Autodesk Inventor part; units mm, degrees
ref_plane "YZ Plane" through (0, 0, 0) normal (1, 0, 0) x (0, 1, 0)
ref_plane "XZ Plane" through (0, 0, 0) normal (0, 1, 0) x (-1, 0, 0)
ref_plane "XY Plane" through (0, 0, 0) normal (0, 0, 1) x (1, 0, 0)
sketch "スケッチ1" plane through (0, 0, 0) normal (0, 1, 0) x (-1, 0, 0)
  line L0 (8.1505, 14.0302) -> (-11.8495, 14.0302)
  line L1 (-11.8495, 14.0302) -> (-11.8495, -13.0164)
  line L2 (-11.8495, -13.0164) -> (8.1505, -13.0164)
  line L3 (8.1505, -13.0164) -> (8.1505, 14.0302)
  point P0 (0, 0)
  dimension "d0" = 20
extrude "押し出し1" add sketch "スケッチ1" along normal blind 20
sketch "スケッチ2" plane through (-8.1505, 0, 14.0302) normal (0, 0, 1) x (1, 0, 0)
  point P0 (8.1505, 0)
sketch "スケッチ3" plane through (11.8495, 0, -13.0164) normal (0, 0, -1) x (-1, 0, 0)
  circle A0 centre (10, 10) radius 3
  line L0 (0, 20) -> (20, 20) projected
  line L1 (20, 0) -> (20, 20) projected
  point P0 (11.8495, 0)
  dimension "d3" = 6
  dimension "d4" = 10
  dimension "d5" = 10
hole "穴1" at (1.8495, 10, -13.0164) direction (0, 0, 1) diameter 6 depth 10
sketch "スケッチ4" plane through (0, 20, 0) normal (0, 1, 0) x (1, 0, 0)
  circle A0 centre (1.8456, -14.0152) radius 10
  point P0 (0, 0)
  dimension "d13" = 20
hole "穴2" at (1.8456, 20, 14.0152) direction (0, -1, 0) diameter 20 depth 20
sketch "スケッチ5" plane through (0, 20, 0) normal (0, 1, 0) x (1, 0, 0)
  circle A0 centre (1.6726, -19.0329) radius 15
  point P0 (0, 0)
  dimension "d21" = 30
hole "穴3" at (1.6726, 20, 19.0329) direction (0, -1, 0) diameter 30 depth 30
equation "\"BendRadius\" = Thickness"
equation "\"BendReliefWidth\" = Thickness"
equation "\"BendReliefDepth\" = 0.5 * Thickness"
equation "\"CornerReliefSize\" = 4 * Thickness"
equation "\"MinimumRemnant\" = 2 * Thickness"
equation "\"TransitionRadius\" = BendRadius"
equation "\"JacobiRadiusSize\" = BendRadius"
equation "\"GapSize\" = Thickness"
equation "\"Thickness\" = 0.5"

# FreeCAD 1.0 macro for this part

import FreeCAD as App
import Part
import Sketcher
from FreeCAD import Vector
Q = App.Units.Quantity

doc = App.newDocument("Part")
params = doc.addObject("Spreadsheet::Sheet", "Params")
for row, (alias, value) in enumerate([
    ("sketch1_width", "20 mm"),
    ("pad1_length", "20 mm"),
    ("sketch2_diameter", "6 mm"),
    ("hole_diameter", "6 mm"),
    ("hole_depth", "10 mm"),
    ("sketch3_diameter", "20 mm"),
    ("hole2_diameter", "20 mm"),
    ("hole2_depth", "20 mm"),
    ("sketch4_diameter", "30 mm"),
    ("hole3_diameter", "30 mm"),
    ("hole3_depth", "30 mm"),
], start=1):
    params.set(f"A{row}", alias)
    params.set(f"B{row}", "=" + value)
    params.setAlias(f"B{row}", alias)

body = doc.addObject("PartDesign::Body", "Body")

sketch1 = doc.addObject("Sketcher::SketchObject", "Sketch")
body.addObject(sketch1)
sketch1.AttachmentSupport = (doc.XZ_Plane, [""])
sketch1.MapMode = "FlatFace"
sketch1.addGeometry([
    Part.LineSegment(Vector(-8, -13, 0), Vector(-8, 14, 0)),
    Part.LineSegment(Vector(-8, 14, 0), Vector(12, 14, 0)),
    Part.LineSegment(Vector(12, 14, 0), Vector(12, -13, 0)),
    Part.LineSegment(Vector(12, -13, 0), Vector(-8, -13, 0)),
], False)
sketch1.addConstraint([
    Sketcher.Constraint("Coincident", 0, 2, 1, 1),
    Sketcher.Constraint("Coincident", 1, 2, 2, 1),
    Sketcher.Constraint("Coincident", 2, 2, 3, 1),
    Sketcher.Constraint("Coincident", 3, 2, 0, 1),
    Sketcher.Constraint("Vertical", 0),
    Sketcher.Constraint("Horizontal", 1),
    Sketcher.Constraint("Vertical", 2),
    Sketcher.Constraint("Horizontal", 3),
    Sketcher.Constraint("DistanceX", 1, 1, 1, 2, Q("20 mm")),
    Sketcher.Constraint("DistanceY", 0, 1, 0, 2, Q("27.0466 mm")),
    Sketcher.Constraint("DistanceX", 0, 2, -1, 1, Q("8.1505 mm")),
    Sketcher.Constraint("DistanceY", -1, 1, 0, 2, Q("14.0302 mm")),
])
sketch1.setExpression("Constraints[8]", "Params.sketch1_width")
pad1 = doc.addObject("PartDesign::Pad", "Pad")
body.addObject(pad1)
pad1.Profile = sketch1
pad1.setExpression("Length", "Params.pad1_length")
pad1.Reversed = True

sketch2 = doc.addObject("Sketcher::SketchObject", "Sketch001")
body.addObject(sketch2)
sketch2.AttachmentSupport = (doc.XY_Plane, [""])
sketch2.MapMode = "FlatFace"
sketch2.AttachmentOffset = App.Placement(Vector(0, 0, -13.0164), App.Rotation())
sketch2.addGeometry(Part.Circle(Vector(1.8, 10, 0), Vector(0, 0, 1), 3), False)
sketch2.addConstraint([
    Sketcher.Constraint("Diameter", 0, Q("6 mm")),
    Sketcher.Constraint("DistanceY", -1, 1, 0, 3, Q("10 mm")),
    Sketcher.Constraint("DistanceX", -1, 1, 0, 3, Q("1.8495 mm")),
])
sketch2.setExpression("Constraints[0]", "Params.sketch2_diameter")
doc.recompute()
hole = doc.addObject("PartDesign::Hole", "Hole")
body.addObject(hole)
hole.Profile = sketch2
hole.ThreadType = "None"
hole.setExpression("Diameter", "Params.hole_diameter")
hole.DepthType = "Dimension"
hole.setExpression("Depth", "Params.hole_depth")
hole.DrillPoint = "Flat"
hole.Reversed = True

sketch3 = doc.addObject("Sketcher::SketchObject", "Sketch002")
body.addObject(sketch3)
sketch3.AttachmentSupport = (doc.XZ_Plane, [""])
sketch3.MapMode = "FlatFace"
sketch3.AttachmentOffset = App.Placement(Vector(0, 0, -20), App.Rotation())
sketch3.addGeometry(Part.Circle(Vector(2, 14, 0), Vector(0, 0, 1), 10), False)
sketch3.addConstraint([
    Sketcher.Constraint("Diameter", 0, Q("20 mm")),
    Sketcher.Constraint("DistanceX", -1, 1, 0, 3, Q("1.8456 mm")),
    Sketcher.Constraint("DistanceY", -1, 1, 0, 3, Q("14.0152 mm")),
])
sketch3.setExpression("Constraints[0]", "Params.sketch3_diameter")
doc.recompute()
hole2 = doc.addObject("PartDesign::Hole", "Hole001")
body.addObject(hole2)
hole2.Profile = sketch3
hole2.ThreadType = "None"
hole2.setExpression("Diameter", "Params.hole2_diameter")
hole2.DepthType = "Dimension"
hole2.setExpression("Depth", "Params.hole2_depth")
hole2.DrillPoint = "Flat"
hole2.Reversed = True

sketch4 = doc.addObject("Sketcher::SketchObject", "Sketch003")
body.addObject(sketch4)
sketch4.AttachmentSupport = (doc.XZ_Plane, [""])
sketch4.MapMode = "FlatFace"
sketch4.AttachmentOffset = App.Placement(Vector(0, 0, -20), App.Rotation())
sketch4.addGeometry(Part.Circle(Vector(2, 19, 0), Vector(0, 0, 1), 15), False)
sketch4.addConstraint([
    Sketcher.Constraint("Diameter", 0, Q("30 mm")),
    Sketcher.Constraint("DistanceY", -1, 1, 0, 3, Q("19.033 mm")),
    Sketcher.Constraint("DistanceX", -1, 1, 0, 3, Q("1.6726 mm")),
])
sketch4.setExpression("Constraints[0]", "Params.sketch4_diameter")
doc.recompute()
hole3 = doc.addObject("PartDesign::Hole", "Hole002")
body.addObject(hole3)
hole3.Profile = sketch4
hole3.ThreadType = "None"
hole3.setExpression("Diameter", "Params.hole3_diameter")
hole3.DepthType = "Dimension"
hole3.setExpression("Depth", "Params.hole3_depth")
hole3.DrillPoint = "Flat"
hole3.Reversed = True

doc.recompute()
